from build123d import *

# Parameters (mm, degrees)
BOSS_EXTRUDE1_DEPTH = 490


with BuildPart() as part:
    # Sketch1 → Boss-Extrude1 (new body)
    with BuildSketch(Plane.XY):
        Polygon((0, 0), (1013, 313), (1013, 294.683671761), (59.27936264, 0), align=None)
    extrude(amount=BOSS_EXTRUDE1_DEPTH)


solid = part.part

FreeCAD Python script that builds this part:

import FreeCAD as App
import Part
import Sketcher


def add_polygon(sketch, points):
    """Adds a closed chain of lines whose ends are joined by coincident constraints."""
    first, n = sketch.GeometryCount, len(points)
    for a, b in zip(points, points[1:] + points[:1]):
        sketch.addGeometry(Part.LineSegment(App.Vector(*a, 0), App.Vector(*b, 0)), False)
    for i in range(n):
        sketch.addConstraint(Sketcher.Constraint("Coincident", first + i, 2, first + (i + 1) % n, 1))

doc = App.newDocument("Part")
body = doc.addObject("PartDesign::Body", "Body")

# Sketch on XY plane
sketch1 = doc.addObject("Sketcher::SketchObject", "Sketch")
body.addObject(sketch1)
sketch1.AttachmentSupport = (doc.XY_Plane, [""])
sketch1.MapMode = "FlatFace"
add_polygon(sketch1, [(1013, 313), (0, 0), (59, 0), (1013, 295)])  # lines 0-3
sketch1.addConstraint([
    Sketcher.Constraint("Horizontal", 1),
    Sketcher.Constraint("Vertical", 3),
    Sketcher.Constraint("Coincident", 0, 2, -1, 1),
    Sketcher.Constraint("Parallel", 0, 2),
    Sketcher.Constraint("DistanceX", -1, 1, 2, 2, 1013.0),
    Sketcher.Constraint("DistanceY", -1, 1, 3, 2, 313.0),
    Sketcher.Constraint("DistanceY", 3, 1, 3, 2, 18.316328),
])
pad1 = doc.addObject("PartDesign::Pad", "Pad")
body.addObject(pad1)
pad1.Profile = sketch1
pad1.Length = 490

doc.recompute()
